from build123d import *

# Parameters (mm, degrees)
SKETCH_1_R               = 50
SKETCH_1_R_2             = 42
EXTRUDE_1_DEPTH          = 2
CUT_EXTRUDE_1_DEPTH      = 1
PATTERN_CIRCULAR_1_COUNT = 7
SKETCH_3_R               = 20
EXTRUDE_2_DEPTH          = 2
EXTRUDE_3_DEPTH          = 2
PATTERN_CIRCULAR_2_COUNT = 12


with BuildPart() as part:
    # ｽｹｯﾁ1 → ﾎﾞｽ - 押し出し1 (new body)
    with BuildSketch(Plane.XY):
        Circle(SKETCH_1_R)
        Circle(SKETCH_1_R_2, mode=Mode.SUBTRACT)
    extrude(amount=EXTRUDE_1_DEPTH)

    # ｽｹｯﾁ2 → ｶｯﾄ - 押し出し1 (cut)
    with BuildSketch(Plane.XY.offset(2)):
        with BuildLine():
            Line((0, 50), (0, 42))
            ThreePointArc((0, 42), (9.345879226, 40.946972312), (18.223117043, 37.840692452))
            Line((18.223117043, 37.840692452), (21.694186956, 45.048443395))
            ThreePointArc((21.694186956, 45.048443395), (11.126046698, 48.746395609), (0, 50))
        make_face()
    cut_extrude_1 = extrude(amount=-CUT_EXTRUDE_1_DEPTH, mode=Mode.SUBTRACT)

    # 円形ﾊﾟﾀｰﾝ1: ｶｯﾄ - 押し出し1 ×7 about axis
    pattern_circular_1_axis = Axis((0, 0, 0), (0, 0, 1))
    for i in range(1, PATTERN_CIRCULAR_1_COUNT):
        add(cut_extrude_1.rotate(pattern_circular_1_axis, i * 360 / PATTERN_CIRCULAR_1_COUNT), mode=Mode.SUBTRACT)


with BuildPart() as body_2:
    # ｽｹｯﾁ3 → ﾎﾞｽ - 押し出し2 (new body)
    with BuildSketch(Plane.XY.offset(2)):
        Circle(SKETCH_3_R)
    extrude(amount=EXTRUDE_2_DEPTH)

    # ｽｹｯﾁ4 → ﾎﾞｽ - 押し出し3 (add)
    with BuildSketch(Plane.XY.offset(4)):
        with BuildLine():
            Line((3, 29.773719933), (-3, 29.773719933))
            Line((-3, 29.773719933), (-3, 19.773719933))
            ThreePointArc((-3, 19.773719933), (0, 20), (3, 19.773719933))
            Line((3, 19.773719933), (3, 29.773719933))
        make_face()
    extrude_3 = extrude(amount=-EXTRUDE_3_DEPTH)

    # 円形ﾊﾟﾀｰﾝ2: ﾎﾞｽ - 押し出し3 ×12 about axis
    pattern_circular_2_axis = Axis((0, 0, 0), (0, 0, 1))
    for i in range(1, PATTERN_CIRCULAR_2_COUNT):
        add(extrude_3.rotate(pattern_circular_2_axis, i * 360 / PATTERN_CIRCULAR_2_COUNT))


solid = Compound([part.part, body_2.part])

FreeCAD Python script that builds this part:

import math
import FreeCAD as App
import Part
import Sketcher

V = App.Vector
Q = App.Units.Quantity

doc = App.newDocument("Part")
body = doc.addObject("PartDesign::Body", "Body")

# Sketch on XY plane
sketch1 = body.newObject("Sketcher::SketchObject", "Sketch")
sketch1.AttachmentSupport = (doc.getObject("XY_Plane"), [""])
sketch1.MapMode = "FlatFace"
sketch1.addGeometry(Part.Circle(V(0, 0, 0), V(0, 0, 1), 50), False)
sketch1.addGeometry(Part.Circle(V(0, 0, 0), V(0, 0, 1), 42), False)
sketch1.addConstraint(Sketcher.Constraint("Coincident", 0, 3, -1, 1))
sketch1.addConstraint(Sketcher.Constraint("Coincident", 1, 3, -1, 1))
sketch1.addConstraint(Sketcher.Constraint("Diameter", 0, Q("100 mm")))
sketch1.addConstraint(Sketcher.Constraint("Diameter", 1, Q("84 mm")))
pad1 = body.newObject("PartDesign::Pad", "Pad")
pad1.Profile = sketch1
pad1.Length = 2

# Sketch on XY plane
sketch2 = body.newObject("Sketcher::SketchObject", "Sketch001")
sketch2.AttachmentSupport = (doc.getObject("XY_Plane"), [""])
sketch2.MapMode = "FlatFace"
sketch2.AttachmentOffset = App.Placement(V(0, 0, 2), App.Rotation())
sketch2.addGeometry(Part.LineSegment(V(0, 50, 0), V(0, 42, 0)), False)
sketch2.addGeometry(Part.ArcOfCircle(Part.Circle(V(0, 0, 0), V(0, 0, 1), 42), math.radians(64.285714), math.radians(90)), False)
sketch2.addGeometry(Part.LineSegment(V(18.223117, 37.840692, 0), V(21.694187, 45.048443, 0)), False)
sketch2.addGeometry(Part.ArcOfCircle(Part.Circle(V(0, 0, 0), V(0, 0, 1), 50), math.radians(64.285714), math.radians(90)), False)
sketch2.addConstraint(Sketcher.Constraint("Coincident", 0, 2, 1, 2))
sketch2.addConstraint(Sketcher.Constraint("Coincident", 1, 1, 2, 1))
sketch2.addConstraint(Sketcher.Constraint("Coincident", 2, 2, 3, 1))
sketch2.addConstraint(Sketcher.Constraint("Coincident", 3, 2, 0, 1))
sketch2.addConstraint(Sketcher.Constraint("Vertical", 0))
sketch2.addConstraint(Sketcher.Constraint("Coincident", 1, 3, -1, 1))
sketch2.addConstraint(Sketcher.Constraint("Coincident", 3, 3, -1, 1))
sketch2.addConstraint(Sketcher.Constraint("PointOnObject", 0, 2, -2))
sketch2.addConstraint(Sketcher.Constraint("Radius", 1, Q("42 mm")))
sketch2.addConstraint(Sketcher.Constraint("Radius", 3, Q("50 mm")))
sketch2.addConstraint(Sketcher.Constraint("DistanceX", 1, 1, 2, 2, Q("3.47107 mm")))
sketch2.addConstraint(Sketcher.Constraint("DistanceX", -1, 1, 1, 1, Q("18.223117 mm")))
pocket1 = body.newObject("PartDesign::Pocket", "Pocket")
pocket1.Profile = sketch2
pocket1.Length = 1
doc.recompute()

polarpattern = body.newObject("PartDesign::PolarPattern", "PolarPattern")
polarpattern.Originals = [pocket1]
polarpattern.Axis = (doc.getObject("Z_Axis"), [""])
polarpattern.Angle = 360
polarpattern.Occurrences = 7
body.Tip = polarpattern
body2 = doc.addObject("PartDesign::Body", "Body001")

# Sketch on XY plane
sketch3 = body2.newObject("Sketcher::SketchObject", "Sketch002")
sketch3.AttachmentSupport = (doc.getObject("XY_Plane001"), [""])
sketch3.MapMode = "FlatFace"
sketch3.AttachmentOffset = App.Placement(V(0, 0, 2), App.Rotation())
sketch3.addGeometry(Part.Circle(V(0, 0, 0), V(0, 0, 1), 20), False)
sketch3.addConstraint(Sketcher.Constraint("Coincident", 0, 3, -1, 1))
sketch3.addConstraint(Sketcher.Constraint("Diameter", 0, Q("40 mm")))
pad2 = body2.newObject("PartDesign::Pad", "Pad001")
pad2.Profile = sketch3
pad2.Length = 2

# Sketch on XY plane
sketch4 = body2.newObject("Sketcher::SketchObject", "Sketch003")
sketch4.AttachmentSupport = (doc.getObject("XY_Plane001"), [""])
sketch4.MapMode = "FlatFace"
sketch4.AttachmentOffset = App.Placement(V(0, 0, 4), App.Rotation())
sketch4.addGeometry(Part.LineSegment(V(3, 29.77372, 0), V(-3, 29.77372, 0)), False)
sketch4.addGeometry(Part.LineSegment(V(-3, 29.77372, 0), V(-3, 19.77372, 0)), False)
sketch4.addGeometry(Part.ArcOfCircle(Part.Circle(V(0, 0, 0), V(0, 0, 1), 20), math.radians(81.373073), math.radians(98.626927)), False)
sketch4.addGeometry(Part.LineSegment(V(3, 19.77372, 0), V(3, 29.77372, 0)), False)
sketch4.addConstraint(Sketcher.Constraint("Coincident", 0, 2, 1, 1))
sketch4.addConstraint(Sketcher.Constraint("Coincident", 1, 2, 2, 2))
sketch4.addConstraint(Sketcher.Constraint("Coincident", 2, 1, 3, 1))
sketch4.addConstraint(Sketcher.Constraint("Coincident", 3, 2, 0, 1))
sketch4.addConstraint(Sketcher.Constraint("Horizontal", 0))
sketch4.addConstraint(Sketcher.Constraint("Vertical", 1))
sketch4.addConstraint(Sketcher.Constraint("Vertical", 3))
sketch4.addConstraint(Sketcher.Constraint("Coincident", 2, 3, -1, 1))
sketch4.addConstraint(Sketcher.Constraint("Horizontal", 1, 2, 2, 1))
sketch4.addConstraint(Sketcher.Constraint("Radius", 2, Q("20 mm")))
sketch4.addConstraint(Sketcher.Constraint("DistanceX", 0, 2, 0, 1, Q("6 mm")))
sketch4.addConstraint(Sketcher.Constraint("DistanceY", 1, 2, 1, 1, Q("10 mm")))
pad3 = body2.newObject("PartDesign::Pad", "Pad002")
pad3.Profile = sketch4
pad3.Length = 2
pad3.Reversed = True
doc.recompute()

polarpattern2 = body2.newObject("PartDesign::PolarPattern", "PolarPattern001")
polarpattern2.Originals = [pad3]
polarpattern2.Axis = (doc.getObject("Z_Axis001"), [""])
polarpattern2.Angle = 360
polarpattern2.Occurrences = 12
body2.Tip = polarpattern2

doc.recompute()
